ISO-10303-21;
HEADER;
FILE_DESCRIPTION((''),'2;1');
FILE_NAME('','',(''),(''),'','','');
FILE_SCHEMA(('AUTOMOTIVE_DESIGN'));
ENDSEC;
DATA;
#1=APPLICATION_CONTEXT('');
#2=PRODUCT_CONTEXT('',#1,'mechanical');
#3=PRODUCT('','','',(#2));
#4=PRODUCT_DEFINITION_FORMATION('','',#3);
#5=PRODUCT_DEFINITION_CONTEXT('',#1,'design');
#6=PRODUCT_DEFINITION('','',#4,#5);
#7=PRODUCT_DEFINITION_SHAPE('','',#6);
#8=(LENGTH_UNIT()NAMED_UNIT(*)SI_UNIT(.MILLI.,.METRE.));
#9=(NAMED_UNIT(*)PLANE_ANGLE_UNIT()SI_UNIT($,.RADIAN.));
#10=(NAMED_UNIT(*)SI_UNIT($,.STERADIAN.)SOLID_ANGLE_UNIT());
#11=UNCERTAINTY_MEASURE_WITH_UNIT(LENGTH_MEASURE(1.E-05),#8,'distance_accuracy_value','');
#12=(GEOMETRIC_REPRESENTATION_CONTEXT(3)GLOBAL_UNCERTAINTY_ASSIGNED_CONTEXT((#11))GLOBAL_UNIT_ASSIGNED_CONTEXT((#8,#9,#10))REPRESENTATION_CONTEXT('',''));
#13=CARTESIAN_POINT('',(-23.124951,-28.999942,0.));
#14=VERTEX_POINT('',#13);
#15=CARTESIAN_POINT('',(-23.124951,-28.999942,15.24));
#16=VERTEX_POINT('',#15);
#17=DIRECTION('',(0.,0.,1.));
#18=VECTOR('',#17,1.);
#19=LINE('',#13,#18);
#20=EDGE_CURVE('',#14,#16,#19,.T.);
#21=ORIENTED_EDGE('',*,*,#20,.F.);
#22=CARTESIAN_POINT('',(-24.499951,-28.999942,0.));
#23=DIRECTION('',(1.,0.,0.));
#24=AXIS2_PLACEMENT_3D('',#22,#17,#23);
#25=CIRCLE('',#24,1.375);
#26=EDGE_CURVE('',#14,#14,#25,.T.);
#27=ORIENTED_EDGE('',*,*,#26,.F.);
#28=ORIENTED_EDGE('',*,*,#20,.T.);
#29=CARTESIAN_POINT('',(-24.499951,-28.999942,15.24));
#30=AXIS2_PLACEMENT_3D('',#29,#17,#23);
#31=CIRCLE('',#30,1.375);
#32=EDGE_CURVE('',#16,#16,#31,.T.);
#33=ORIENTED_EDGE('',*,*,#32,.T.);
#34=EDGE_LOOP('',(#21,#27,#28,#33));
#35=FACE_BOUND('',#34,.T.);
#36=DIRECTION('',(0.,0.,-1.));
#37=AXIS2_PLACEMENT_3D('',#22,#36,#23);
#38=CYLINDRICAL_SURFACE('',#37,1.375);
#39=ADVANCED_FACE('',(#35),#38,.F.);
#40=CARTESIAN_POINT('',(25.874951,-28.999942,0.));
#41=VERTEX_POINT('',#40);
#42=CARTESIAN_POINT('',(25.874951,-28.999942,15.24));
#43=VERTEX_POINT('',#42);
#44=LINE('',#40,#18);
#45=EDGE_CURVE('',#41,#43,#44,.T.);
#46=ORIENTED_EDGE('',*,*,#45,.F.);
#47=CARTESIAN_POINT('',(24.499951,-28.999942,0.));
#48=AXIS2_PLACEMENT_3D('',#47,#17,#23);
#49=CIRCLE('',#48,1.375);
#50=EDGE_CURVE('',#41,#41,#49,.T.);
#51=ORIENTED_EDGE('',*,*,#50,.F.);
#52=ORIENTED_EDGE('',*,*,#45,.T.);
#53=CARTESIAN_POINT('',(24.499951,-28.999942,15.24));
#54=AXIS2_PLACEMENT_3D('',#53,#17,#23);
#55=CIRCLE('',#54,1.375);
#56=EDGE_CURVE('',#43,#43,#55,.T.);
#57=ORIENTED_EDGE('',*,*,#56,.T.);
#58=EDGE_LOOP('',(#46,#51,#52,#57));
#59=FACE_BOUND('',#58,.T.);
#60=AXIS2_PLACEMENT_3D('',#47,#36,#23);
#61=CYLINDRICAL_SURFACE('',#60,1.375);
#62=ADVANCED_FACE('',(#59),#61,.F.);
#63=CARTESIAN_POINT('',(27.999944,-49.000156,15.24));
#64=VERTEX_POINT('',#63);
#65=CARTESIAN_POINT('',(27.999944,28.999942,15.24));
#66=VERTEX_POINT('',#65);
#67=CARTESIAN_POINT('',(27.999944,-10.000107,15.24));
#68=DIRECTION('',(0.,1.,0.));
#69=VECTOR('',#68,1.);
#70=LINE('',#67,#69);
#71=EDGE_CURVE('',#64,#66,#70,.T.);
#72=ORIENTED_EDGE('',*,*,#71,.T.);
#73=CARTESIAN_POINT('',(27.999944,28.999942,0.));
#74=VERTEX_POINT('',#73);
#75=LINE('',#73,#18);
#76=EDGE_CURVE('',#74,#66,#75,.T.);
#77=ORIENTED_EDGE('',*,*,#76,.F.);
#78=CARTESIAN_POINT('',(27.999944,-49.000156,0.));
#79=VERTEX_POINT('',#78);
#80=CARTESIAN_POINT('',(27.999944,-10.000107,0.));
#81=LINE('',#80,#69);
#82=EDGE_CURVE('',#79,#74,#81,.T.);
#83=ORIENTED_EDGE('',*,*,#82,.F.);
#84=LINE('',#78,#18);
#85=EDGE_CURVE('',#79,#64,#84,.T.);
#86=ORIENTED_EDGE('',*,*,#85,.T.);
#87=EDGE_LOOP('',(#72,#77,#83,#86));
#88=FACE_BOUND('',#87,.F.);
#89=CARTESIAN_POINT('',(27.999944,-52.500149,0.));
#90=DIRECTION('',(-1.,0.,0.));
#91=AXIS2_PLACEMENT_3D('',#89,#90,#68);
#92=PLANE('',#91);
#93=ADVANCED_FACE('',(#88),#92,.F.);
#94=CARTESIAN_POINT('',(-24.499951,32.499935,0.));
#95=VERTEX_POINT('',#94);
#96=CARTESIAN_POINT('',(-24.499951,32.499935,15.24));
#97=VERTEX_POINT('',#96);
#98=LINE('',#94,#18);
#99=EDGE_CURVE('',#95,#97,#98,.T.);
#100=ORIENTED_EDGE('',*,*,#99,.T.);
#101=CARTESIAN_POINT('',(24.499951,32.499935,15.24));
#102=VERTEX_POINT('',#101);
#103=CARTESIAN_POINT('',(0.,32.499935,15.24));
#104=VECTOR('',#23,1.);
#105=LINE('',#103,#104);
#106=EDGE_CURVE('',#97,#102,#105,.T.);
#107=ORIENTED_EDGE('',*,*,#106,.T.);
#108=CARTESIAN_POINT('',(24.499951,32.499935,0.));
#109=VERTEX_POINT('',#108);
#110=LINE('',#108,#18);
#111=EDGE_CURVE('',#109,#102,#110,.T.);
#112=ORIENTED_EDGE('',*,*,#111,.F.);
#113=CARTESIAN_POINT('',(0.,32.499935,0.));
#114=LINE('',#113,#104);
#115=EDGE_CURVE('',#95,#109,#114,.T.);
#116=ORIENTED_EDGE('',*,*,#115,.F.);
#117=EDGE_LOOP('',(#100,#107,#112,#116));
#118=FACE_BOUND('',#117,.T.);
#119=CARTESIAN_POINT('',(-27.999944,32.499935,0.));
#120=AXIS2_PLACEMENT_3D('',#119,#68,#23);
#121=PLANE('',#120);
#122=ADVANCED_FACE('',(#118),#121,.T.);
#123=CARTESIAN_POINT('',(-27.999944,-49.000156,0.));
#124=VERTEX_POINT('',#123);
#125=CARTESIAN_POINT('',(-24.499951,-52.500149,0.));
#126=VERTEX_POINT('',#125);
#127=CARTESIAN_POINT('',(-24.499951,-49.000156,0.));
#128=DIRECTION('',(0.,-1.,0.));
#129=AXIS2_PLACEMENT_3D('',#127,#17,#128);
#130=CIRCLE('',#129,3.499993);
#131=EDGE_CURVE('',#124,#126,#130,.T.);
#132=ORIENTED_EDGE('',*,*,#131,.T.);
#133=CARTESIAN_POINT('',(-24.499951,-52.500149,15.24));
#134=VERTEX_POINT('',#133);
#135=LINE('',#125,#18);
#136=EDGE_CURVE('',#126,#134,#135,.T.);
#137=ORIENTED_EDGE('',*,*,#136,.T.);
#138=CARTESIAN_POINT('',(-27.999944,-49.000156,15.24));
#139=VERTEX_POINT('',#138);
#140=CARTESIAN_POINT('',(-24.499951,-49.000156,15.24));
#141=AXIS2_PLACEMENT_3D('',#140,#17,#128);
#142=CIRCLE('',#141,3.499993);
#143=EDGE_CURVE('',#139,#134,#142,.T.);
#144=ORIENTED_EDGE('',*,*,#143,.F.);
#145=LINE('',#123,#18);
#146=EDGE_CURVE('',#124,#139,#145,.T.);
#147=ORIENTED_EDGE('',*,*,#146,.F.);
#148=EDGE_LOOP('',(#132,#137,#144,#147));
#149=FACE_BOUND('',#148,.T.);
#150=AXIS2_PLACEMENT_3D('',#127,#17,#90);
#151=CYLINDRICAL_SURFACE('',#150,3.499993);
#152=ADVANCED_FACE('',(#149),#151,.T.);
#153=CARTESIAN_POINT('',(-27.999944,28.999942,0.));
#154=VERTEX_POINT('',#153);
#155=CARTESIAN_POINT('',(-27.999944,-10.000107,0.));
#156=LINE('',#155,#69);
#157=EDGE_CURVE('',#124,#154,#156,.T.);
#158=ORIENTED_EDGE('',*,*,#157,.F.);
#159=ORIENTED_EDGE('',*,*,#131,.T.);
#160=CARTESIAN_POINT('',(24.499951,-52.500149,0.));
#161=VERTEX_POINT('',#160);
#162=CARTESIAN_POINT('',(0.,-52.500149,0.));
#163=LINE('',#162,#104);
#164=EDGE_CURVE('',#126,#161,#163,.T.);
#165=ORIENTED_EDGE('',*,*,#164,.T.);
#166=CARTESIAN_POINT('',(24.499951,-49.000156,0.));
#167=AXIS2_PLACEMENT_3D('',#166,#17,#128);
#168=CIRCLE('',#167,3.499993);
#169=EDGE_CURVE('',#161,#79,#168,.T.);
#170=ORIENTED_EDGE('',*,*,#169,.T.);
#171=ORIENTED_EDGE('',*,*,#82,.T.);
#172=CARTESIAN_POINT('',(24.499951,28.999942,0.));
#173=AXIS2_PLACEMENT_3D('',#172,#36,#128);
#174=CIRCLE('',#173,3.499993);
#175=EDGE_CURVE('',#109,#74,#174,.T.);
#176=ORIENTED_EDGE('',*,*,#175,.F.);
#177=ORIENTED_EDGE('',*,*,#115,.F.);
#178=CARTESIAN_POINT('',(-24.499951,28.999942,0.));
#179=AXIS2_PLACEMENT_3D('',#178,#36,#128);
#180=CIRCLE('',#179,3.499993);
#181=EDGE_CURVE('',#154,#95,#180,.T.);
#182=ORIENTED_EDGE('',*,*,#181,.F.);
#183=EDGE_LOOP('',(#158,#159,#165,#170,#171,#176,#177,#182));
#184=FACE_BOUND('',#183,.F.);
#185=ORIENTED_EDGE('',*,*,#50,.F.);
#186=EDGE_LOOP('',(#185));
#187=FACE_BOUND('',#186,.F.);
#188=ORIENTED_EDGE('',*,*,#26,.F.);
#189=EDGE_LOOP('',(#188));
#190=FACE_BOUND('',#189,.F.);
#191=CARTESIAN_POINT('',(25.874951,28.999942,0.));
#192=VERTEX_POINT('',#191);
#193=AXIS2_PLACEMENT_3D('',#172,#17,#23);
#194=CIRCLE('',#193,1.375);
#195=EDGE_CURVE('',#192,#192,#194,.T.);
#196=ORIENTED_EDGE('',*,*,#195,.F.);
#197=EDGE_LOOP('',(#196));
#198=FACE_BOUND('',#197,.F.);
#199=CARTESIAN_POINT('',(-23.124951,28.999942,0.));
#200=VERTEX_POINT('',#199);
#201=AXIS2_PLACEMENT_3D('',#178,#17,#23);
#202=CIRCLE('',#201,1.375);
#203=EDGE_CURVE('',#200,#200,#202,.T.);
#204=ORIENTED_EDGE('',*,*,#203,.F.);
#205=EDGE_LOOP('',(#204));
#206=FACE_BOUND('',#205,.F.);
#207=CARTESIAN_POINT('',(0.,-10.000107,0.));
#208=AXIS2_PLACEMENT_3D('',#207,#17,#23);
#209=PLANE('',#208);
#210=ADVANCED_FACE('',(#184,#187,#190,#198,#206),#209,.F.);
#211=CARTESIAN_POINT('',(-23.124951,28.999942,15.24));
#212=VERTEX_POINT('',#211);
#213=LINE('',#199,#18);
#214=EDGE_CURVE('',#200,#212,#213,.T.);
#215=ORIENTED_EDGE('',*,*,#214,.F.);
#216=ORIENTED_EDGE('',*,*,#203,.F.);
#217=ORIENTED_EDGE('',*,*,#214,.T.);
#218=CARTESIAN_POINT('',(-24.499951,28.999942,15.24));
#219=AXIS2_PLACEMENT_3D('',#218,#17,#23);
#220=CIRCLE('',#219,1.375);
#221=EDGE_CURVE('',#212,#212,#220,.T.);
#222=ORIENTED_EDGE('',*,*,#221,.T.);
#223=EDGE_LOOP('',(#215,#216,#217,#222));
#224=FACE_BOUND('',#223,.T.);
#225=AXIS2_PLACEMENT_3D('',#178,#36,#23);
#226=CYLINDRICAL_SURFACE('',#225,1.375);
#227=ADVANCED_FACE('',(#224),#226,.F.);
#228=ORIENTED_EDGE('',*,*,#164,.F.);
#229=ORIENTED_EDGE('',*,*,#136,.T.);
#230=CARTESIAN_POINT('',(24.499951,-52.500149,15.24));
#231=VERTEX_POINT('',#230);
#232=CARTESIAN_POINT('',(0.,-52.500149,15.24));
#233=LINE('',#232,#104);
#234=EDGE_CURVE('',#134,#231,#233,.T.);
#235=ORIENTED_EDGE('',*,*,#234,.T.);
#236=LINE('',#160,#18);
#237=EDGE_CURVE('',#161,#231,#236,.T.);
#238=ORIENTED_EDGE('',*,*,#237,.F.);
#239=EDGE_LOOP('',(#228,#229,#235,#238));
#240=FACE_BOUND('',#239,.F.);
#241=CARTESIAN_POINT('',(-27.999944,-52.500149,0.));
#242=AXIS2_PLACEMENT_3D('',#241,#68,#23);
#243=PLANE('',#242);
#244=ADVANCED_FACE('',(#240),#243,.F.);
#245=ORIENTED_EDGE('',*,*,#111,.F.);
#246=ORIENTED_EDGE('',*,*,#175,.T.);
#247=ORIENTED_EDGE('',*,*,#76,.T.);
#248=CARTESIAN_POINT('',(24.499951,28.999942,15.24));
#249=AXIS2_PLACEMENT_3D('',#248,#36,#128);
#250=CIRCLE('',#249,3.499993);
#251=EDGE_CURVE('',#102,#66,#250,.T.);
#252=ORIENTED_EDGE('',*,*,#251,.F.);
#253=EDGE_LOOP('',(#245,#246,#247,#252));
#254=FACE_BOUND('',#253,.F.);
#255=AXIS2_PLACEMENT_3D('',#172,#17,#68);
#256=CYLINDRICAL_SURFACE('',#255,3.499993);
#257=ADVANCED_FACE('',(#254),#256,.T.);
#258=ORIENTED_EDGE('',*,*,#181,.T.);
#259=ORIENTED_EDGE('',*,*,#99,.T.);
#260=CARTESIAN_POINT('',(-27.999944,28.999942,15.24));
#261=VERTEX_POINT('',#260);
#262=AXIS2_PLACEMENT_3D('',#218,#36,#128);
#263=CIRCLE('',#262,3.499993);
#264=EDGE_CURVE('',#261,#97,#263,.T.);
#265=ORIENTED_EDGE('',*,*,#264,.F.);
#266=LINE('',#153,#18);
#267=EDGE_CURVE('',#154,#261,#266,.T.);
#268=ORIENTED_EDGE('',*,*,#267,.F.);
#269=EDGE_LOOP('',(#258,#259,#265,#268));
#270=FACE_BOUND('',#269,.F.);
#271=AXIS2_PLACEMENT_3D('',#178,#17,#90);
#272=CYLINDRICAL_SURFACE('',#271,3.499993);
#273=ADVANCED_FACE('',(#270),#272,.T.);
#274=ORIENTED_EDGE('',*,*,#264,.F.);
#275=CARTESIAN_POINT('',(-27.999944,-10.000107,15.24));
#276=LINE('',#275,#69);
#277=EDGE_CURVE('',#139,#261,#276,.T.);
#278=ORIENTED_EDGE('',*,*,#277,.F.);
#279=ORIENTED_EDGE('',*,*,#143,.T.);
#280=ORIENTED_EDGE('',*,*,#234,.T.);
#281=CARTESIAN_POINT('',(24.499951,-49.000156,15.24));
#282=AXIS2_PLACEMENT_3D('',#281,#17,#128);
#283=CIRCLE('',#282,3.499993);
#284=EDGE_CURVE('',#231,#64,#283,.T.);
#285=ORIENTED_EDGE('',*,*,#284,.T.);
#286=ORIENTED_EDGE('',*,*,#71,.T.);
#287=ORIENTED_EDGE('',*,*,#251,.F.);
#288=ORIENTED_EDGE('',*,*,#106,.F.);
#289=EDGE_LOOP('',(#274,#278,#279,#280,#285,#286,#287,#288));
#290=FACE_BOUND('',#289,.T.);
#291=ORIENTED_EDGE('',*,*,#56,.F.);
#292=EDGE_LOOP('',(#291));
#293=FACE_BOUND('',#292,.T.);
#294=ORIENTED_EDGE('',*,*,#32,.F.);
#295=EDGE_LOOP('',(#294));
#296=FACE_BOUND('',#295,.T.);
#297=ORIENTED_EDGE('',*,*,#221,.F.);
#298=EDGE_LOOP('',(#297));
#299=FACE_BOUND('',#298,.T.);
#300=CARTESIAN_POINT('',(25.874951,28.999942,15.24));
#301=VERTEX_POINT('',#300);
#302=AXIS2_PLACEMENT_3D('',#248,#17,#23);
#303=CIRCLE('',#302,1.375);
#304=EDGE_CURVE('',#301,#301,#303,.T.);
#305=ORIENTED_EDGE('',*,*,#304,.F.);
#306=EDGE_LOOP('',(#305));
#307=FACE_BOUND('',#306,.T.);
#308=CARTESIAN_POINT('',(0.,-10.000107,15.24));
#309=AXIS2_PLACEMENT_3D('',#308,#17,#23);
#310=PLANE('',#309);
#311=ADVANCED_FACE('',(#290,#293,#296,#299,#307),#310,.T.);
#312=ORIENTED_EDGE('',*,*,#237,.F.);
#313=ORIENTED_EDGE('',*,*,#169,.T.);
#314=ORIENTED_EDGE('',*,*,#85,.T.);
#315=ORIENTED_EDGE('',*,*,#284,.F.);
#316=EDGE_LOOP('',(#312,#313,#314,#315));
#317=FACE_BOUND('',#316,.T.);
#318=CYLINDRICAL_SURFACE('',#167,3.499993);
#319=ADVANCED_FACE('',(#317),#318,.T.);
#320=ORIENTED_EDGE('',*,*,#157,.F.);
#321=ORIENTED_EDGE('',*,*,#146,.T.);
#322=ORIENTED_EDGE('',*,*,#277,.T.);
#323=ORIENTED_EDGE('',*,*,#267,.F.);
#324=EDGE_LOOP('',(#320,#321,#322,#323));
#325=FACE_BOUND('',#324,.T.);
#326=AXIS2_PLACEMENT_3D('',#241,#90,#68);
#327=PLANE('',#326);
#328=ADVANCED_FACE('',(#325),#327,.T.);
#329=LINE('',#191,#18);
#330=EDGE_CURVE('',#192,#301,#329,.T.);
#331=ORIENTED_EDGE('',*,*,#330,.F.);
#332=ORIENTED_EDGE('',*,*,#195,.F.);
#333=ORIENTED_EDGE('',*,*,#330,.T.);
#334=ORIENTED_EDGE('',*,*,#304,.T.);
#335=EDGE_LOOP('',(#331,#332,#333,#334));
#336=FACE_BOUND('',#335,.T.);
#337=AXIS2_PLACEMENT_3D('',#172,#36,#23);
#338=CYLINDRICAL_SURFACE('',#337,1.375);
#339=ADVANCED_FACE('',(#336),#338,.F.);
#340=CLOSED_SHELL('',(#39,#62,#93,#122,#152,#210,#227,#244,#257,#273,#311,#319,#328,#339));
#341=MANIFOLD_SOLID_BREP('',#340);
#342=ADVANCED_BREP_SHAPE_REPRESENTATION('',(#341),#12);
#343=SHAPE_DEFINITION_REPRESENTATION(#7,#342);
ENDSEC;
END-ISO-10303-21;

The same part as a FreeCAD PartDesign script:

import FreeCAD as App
import Part
import Sketcher


def edges_at(feature, points):
    """Names of the edges that pass closest to the given points."""
    edges = feature.Shape.Edges
    near = lambda p: min(range(len(edges)), key=lambda i: edges[i].distToShape(Part.Vertex(*p))[0])
    return sorted({f"Edge{near(p) + 1}" for p in points})

doc = App.newDocument("Part")
params = doc.addObject("Spreadsheet::Sheet", "Params")
for row, (alias, value) in enumerate([
    ("pad1_length", "0.6 in"),
    ("fillet_radius", "3.499993 mm"),
], start=1):
    params.set(f"A{row}", alias)
    params.set(f"B{row}", "=" + value)
    params.setAlias(f"B{row}", alias)

body = doc.addObject("PartDesign::Body", "Body")

sketch1 = body.newObject("Sketcher::SketchObject", "Sketch")
sketch1.AttachmentSupport = (doc.getObject("XY_Plane"), [""])
sketch1.MapMode = "FlatFace"
sketch1.addGeometry([
    Part.LineSegment(App.Vector(-28, 32.5, 0), App.Vector(-28, -52.5, 0)),
    Part.LineSegment(App.Vector(-28, -52.5, 0), App.Vector(28, -52.5, 0)),
    Part.LineSegment(App.Vector(28, -52.5, 0), App.Vector(28, 32.5, 0)),
    Part.LineSegment(App.Vector(28, 32.5, 0), App.Vector(-28, 32.5, 0)),
    Part.Circle(App.Vector(-24.5, -29, 0), App.Vector(0, 0, 1), 1.4),
    Part.Circle(App.Vector(24.5, -29, 0), App.Vector(0, 0, 1), 1.4),
    Part.Circle(App.Vector(-24.5, 29, 0), App.Vector(0, 0, 1), 1.4),
    Part.Circle(App.Vector(24.5, 29, 0), App.Vector(0, 0, 1), 1.4),
], False)
sketch1.addConstraint([
    Sketcher.Constraint("Coincident", 0, 2, 1, 1),
    Sketcher.Constraint("Coincident", 1, 2, 2, 1),
    Sketcher.Constraint("Coincident", 2, 2, 3, 1),
    Sketcher.Constraint("Coincident", 3, 2, 0, 1),
    Sketcher.Constraint("Vertical", 0),
    Sketcher.Constraint("Horizontal", 1),
    Sketcher.Constraint("Vertical", 2),
    Sketcher.Constraint("Horizontal", 3),
    Sketcher.Constraint("Equal", 4, 5),
    Sketcher.Constraint("Equal", 5, 6),
    Sketcher.Constraint("Equal", 6, 7),
    Sketcher.Constraint("Symmetric", 5, 3, 6, 3, -1, 1),
    Sketcher.Constraint("Symmetric", 4, 3, 7, 3, -1, 1),
    Sketcher.Constraint("Symmetric", 4, 3, 5, 3, -2),
    Sketcher.Constraint("Diameter", 4, 2.75),
    Sketcher.Constraint("DistanceX", 1, 1, 1, 2, 55.999888),
    Sketcher.Constraint("DistanceY", 0, 2, 0, 1, 85.000084),
    Sketcher.Constraint("DistanceX", 4, 3, -1, 1, 24.499951),
    Sketcher.Constraint("DistanceY", 0, 2, -1, 1, 52.500149),
    Sketcher.Constraint("DistanceY", 0, 2, 6, 3, 81.500091),
    Sketcher.Constraint("DistanceX", 0, 2, -1, 1, 27.999944),
])
pad1 = body.newObject("PartDesign::Pad", "Pad")
pad1.Profile = sketch1
pad1.setExpression("Length", "Params.pad1_length")
doc.recompute()

fillet = body.newObject("PartDesign::Fillet", "Fillet")
fillet.Base = (pad1, edges_at(pad1, [
    (-28, 32.5, 7.62),
    (28, 32.5, 7.62),
    (28, -52.5, 7.62),
    (-28, -52.5, 7.62),
]))
fillet.setExpression("Radius", "Params.fillet_radius")

doc.recompute()
